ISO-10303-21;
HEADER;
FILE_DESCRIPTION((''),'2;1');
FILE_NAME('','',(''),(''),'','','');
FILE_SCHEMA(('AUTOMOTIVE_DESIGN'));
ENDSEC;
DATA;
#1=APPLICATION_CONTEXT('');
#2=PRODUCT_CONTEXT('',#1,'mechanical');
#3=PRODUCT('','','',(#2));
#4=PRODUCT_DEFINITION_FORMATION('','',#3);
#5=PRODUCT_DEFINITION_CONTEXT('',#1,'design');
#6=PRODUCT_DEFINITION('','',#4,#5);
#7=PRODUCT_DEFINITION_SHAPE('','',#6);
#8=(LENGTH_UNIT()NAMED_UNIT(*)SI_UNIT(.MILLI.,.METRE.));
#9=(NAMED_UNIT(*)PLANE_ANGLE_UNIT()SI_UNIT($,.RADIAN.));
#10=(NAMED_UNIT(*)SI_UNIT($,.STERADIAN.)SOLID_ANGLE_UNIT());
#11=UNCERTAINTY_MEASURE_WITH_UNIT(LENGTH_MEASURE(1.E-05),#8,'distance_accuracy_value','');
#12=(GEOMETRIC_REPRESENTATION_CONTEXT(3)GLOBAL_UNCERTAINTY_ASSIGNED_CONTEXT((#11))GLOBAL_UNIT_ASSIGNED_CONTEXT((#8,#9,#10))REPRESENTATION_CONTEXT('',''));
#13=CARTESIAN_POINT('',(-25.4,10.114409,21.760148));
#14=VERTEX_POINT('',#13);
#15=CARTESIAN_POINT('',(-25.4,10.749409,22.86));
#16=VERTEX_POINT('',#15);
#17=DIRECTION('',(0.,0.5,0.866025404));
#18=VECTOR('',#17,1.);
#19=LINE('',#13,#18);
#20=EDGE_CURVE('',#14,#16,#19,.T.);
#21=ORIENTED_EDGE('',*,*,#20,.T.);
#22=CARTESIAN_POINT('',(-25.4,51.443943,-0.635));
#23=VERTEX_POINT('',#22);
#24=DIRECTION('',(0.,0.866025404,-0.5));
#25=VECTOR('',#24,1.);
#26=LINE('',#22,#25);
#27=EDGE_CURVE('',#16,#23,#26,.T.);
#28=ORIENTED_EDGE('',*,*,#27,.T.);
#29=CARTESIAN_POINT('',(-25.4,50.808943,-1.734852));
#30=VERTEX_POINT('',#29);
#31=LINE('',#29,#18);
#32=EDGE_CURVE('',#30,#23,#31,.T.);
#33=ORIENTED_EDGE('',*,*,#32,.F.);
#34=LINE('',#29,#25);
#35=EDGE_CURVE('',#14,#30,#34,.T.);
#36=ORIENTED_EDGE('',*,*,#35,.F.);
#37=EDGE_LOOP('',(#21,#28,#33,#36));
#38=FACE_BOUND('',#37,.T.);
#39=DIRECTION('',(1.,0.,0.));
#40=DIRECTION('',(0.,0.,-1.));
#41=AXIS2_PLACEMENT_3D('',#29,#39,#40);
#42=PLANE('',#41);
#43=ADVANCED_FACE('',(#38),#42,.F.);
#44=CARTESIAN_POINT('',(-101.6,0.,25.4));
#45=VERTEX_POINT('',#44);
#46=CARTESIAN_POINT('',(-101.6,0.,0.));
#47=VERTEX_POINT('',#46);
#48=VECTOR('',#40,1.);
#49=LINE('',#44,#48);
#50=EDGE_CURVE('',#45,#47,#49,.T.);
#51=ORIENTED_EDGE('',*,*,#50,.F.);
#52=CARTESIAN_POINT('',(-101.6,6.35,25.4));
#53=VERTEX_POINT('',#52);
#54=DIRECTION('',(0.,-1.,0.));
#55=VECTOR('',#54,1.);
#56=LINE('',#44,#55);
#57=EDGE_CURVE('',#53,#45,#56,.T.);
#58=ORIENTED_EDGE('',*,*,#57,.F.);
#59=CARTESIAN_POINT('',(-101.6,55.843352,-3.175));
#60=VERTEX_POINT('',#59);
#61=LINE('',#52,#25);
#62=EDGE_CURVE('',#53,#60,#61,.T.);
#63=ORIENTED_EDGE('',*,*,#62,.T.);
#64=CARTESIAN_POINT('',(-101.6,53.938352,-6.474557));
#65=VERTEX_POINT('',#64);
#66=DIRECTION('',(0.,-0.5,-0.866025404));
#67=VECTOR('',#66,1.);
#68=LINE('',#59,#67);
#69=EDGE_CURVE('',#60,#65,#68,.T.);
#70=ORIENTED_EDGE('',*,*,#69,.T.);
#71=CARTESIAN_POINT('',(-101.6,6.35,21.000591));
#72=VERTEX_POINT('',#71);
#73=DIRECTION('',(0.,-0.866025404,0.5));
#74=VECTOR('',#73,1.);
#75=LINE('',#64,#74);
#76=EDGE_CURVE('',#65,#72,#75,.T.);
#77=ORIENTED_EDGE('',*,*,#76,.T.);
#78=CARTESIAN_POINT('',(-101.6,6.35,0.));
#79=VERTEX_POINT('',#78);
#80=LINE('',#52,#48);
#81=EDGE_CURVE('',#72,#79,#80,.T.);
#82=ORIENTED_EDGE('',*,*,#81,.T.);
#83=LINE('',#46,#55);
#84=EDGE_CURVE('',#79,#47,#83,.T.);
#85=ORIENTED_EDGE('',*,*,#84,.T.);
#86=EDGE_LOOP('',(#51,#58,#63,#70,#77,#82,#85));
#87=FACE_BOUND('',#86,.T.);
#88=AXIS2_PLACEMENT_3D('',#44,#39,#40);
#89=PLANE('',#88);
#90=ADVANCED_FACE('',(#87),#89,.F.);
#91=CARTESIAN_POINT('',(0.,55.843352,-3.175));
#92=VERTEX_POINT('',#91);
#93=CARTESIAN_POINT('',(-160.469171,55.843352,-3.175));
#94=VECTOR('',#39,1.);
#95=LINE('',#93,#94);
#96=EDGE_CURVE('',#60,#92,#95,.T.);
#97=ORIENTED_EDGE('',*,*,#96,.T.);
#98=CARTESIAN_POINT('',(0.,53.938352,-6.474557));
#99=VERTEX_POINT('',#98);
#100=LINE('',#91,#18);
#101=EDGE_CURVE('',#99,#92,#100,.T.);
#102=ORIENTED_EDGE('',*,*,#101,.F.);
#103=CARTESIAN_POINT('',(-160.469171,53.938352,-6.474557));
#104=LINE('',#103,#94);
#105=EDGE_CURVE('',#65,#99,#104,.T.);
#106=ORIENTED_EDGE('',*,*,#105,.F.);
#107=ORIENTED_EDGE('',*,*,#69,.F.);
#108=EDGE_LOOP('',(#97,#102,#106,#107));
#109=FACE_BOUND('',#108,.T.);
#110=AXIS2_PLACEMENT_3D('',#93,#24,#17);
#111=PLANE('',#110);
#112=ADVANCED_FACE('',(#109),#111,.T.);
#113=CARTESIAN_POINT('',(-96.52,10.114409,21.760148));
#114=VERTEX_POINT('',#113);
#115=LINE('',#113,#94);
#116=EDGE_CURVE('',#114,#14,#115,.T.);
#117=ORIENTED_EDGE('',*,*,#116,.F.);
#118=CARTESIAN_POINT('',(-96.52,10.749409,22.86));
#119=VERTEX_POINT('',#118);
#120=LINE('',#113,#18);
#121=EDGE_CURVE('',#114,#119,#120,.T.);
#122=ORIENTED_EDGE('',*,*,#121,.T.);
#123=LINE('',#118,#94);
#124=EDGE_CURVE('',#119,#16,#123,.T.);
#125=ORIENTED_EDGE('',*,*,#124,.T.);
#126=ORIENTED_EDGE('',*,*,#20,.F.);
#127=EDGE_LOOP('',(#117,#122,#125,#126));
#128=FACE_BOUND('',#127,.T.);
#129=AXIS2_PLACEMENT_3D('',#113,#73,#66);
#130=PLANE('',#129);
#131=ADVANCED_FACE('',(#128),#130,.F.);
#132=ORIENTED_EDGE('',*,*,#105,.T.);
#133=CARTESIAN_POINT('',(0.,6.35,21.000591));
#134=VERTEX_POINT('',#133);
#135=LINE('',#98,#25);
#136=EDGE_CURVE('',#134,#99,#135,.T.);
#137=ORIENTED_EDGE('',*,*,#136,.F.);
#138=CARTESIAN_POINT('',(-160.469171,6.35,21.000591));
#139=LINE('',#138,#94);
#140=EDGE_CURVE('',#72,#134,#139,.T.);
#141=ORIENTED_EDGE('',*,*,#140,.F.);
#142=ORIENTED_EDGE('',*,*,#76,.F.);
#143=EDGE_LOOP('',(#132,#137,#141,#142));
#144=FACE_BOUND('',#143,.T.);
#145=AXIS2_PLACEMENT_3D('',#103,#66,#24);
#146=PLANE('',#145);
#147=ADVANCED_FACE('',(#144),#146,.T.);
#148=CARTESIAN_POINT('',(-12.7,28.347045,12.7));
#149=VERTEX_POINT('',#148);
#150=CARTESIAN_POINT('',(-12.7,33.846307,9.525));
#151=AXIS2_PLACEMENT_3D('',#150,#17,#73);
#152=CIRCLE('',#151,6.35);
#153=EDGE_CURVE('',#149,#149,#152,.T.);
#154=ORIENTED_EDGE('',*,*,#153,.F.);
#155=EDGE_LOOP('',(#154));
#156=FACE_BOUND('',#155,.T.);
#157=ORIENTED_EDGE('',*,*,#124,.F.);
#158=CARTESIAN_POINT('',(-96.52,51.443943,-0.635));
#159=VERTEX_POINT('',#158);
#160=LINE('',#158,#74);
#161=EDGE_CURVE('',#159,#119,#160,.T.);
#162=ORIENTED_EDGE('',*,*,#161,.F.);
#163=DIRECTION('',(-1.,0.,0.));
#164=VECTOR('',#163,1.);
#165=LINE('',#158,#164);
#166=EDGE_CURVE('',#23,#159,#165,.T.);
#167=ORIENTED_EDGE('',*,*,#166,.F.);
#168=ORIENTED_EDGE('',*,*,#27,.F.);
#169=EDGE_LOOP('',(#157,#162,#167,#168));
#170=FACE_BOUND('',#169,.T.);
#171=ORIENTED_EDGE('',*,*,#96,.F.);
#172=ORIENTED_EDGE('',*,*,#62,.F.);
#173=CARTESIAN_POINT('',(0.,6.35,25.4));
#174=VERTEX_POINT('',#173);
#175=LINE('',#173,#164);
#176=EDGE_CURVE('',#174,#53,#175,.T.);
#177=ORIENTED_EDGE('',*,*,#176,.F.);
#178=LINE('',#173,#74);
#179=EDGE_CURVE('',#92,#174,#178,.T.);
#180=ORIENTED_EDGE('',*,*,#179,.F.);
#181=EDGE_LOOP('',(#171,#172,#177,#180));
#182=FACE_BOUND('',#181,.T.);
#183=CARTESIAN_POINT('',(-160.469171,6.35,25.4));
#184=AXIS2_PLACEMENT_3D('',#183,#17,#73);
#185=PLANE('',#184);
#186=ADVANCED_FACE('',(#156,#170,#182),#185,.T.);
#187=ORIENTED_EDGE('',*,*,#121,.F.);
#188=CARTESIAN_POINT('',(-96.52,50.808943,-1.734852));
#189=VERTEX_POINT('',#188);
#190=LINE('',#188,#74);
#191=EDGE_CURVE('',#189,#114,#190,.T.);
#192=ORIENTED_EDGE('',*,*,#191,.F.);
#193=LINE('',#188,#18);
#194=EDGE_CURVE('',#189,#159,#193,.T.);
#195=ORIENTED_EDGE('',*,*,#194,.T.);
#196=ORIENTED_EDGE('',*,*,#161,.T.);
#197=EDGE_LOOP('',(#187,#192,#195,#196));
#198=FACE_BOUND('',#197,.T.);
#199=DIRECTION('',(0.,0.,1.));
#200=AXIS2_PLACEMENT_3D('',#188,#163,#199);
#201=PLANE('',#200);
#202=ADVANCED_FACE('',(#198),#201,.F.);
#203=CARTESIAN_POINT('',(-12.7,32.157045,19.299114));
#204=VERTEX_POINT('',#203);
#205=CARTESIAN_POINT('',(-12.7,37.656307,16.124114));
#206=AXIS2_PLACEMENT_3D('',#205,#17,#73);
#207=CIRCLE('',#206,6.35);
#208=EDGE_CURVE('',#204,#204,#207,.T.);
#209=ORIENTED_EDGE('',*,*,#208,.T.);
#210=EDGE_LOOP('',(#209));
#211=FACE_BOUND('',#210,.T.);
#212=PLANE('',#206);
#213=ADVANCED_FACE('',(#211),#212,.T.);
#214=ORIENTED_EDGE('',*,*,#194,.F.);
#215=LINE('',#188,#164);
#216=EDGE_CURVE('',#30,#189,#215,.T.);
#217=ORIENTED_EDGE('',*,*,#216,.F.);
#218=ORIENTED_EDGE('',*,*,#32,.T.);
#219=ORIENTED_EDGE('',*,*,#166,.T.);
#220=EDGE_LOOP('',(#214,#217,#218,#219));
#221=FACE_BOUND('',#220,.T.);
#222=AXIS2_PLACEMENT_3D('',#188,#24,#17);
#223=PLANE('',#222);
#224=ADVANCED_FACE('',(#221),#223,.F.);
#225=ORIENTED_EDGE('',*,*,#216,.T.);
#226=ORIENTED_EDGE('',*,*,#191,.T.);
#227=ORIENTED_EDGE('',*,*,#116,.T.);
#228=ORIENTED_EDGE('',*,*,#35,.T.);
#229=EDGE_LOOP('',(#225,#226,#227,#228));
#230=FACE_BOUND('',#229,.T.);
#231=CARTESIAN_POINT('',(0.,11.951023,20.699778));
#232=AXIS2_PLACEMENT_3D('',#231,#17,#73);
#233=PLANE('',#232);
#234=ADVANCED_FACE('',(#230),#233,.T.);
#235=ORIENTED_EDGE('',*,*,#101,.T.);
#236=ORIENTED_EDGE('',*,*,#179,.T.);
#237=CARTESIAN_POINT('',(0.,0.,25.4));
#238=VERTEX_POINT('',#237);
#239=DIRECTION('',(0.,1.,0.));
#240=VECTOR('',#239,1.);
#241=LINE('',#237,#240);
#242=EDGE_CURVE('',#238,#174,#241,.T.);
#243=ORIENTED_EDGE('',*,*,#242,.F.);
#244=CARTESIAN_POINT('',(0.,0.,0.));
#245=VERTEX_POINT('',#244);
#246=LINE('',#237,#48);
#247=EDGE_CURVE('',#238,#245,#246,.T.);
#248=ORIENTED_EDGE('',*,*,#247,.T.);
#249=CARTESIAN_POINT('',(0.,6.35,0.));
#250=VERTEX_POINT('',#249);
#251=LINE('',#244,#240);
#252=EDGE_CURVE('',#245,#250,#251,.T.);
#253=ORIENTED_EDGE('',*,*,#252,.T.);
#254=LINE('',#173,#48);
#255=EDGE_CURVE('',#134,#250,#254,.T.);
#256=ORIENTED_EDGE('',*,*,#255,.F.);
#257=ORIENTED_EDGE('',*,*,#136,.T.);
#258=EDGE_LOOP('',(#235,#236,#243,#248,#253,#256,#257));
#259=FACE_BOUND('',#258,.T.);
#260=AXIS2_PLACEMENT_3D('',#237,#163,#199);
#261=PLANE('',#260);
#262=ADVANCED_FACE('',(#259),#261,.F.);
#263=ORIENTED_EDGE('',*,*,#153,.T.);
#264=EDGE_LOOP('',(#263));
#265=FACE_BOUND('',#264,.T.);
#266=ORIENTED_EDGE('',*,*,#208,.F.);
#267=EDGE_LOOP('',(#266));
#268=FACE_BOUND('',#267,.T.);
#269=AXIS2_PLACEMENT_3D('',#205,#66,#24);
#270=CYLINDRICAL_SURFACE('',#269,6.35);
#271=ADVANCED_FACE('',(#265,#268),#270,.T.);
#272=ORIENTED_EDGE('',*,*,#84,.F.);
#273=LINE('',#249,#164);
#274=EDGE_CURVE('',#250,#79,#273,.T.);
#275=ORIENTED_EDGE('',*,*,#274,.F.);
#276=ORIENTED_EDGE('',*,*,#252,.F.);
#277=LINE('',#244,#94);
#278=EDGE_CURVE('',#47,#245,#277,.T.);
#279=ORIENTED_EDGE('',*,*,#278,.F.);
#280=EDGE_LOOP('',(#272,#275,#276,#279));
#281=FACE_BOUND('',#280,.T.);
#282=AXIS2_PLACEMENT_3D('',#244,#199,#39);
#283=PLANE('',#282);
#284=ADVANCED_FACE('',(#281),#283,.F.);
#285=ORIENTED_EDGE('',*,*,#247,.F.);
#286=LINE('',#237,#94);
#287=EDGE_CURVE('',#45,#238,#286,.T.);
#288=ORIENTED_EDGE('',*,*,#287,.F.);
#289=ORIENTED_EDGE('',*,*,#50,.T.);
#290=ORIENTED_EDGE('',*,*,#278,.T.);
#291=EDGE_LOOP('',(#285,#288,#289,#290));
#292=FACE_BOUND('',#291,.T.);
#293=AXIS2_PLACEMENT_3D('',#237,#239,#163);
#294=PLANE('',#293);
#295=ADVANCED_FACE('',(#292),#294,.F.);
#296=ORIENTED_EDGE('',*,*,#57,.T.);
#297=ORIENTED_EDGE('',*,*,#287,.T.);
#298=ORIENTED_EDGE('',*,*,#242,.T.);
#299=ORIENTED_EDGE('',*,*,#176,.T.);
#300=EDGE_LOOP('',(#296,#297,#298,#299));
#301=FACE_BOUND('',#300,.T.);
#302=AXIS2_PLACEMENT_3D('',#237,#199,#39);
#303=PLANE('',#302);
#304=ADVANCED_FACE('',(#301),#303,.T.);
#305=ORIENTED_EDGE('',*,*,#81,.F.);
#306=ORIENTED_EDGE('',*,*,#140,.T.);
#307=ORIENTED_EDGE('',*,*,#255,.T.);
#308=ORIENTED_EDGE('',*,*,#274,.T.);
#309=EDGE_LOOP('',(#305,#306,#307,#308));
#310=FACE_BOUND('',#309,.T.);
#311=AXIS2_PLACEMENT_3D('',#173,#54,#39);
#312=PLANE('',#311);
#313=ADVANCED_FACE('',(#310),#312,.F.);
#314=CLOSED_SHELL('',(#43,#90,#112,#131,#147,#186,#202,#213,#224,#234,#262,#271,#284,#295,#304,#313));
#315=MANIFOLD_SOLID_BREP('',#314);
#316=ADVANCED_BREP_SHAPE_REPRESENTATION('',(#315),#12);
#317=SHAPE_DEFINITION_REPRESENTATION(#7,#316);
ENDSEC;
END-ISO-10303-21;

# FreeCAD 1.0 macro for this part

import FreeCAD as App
import Part
import Sketcher
Q = App.Units.Quantity


def add_polygon(sketch, points):
    """Adds a closed chain of lines whose ends are joined by coincident constraints."""
    first, n = sketch.GeometryCount, len(points)
    for a, b in zip(points, points[1:] + points[:1]):
        sketch.addGeometry(Part.LineSegment(App.Vector(*a, 0), App.Vector(*b, 0)), False)
    for i in range(n):
        sketch.addConstraint(Sketcher.Constraint("Coincident", first + i, 2, first + (i + 1) % n, 1))

doc = App.newDocument("Part")
body = doc.addObject("PartDesign::Body", "Body")

sketch1 = doc.addObject("Sketcher::SketchObject", "Sketch")
body.addObject(sketch1)
sketch1.AttachmentSupport = (doc.XY_Plane, [""])
sketch1.MapMode = "FlatFace"
add_polygon(sketch1, [(-102, 6), (-102, 0), (0, 0), (0, 6)])
sketch1.addConstraint([
    Sketcher.Constraint("Vertical", 0),
    Sketcher.Constraint("Horizontal", 1),
    Sketcher.Constraint("Vertical", 2),
    Sketcher.Constraint("Horizontal", 3),
    Sketcher.Constraint("Coincident", 1, 2, -1, 1),
    Sketcher.Constraint("DistanceX", 1, 1, 1, 2, Q("4 in")),
    Sketcher.Constraint("DistanceY", 0, 2, 0, 1, Q("0.25 in")),
])
pad1 = doc.addObject("PartDesign::Pad", "Pad")
body.addObject(pad1)
pad1.Profile = sketch1
pad1.Length = Q("1 in")

sketch2 = doc.addObject("Sketcher::SketchObject", "Sketch001")
body.addObject(sketch2)
sketch2.AttachmentSupport = (doc.YZ_Plane, [""])
sketch2.MapMode = "FlatFace"
add_polygon(sketch2, [(55.8, -3.2), (6.3, 25.4), (6.3, 21), (53.9, -6.5)])
sketch2.addConstraint([
    Sketcher.Constraint("Vertical", 1),
    Sketcher.Constraint("Parallel", 0, 2),
    Sketcher.Constraint("Perpendicular", 2, 3),
    Sketcher.Constraint("DistanceY", -1, 1, 0, 2, Q("1 in")),
    Sketcher.Constraint("Angle", 0, Q("150 deg")),
    Sketcher.Constraint("Distance", 0, Q("2.25 in")),
    Sketcher.Constraint("Distance", 3, Q("0.15 in")),
    Sketcher.Constraint("DistanceX", -1, 1, 0, 2, Q("0.25 in")),
])
pad2 = doc.addObject("PartDesign::Pad", "Pad001")
body.addObject(pad2)
pad2.Profile = sketch2
pad2.Length = Q("4 in")
pad2.Reversed = True

sketch3 = doc.addObject("Sketcher::SketchObject", "Sketch002")
body.addObject(sketch3)
sketch3.Placement = App.Placement(App.Vector(0, 12.586023, 21.799631), App.Rotation(App.Vector(1, 0, 0), App.Vector(0, 0.866025404, -0.5), App.Vector(0, 0.5, 0.866025404), "ZXY"))
add_polygon(sketch3, [(-97, 45), (-97, -2), (-25, -2), (-25, 45)])
sketch3.addConstraint([
    Sketcher.Constraint("Vertical", 0),
    Sketcher.Constraint("Horizontal", 1),
    Sketcher.Constraint("Vertical", 2),
    Sketcher.Constraint("Horizontal", 3),
    Sketcher.Constraint("DistanceX", 1, 1, 1, 2, Q("2.8 in")),
    Sketcher.Constraint("DistanceX", 1, 2, -1, 1, Q("1 in")),
    Sketcher.Constraint("DistanceY", 0, 2, 0, 1, Q("1.85 in")),
    Sketcher.Constraint("DistanceY", 0, 2, -1, 1, 2.120739),
])
pocket1 = doc.addObject("PartDesign::Pocket", "Pocket")
body.addObject(pocket1)
pocket1.Profile = sketch3
pocket1.Length = Q("0.05 in")

sketch4 = doc.addObject("Sketcher::SketchObject", "Sketch003")
body.addObject(sketch4)
sketch4.Placement = App.Placement(App.Vector(0, 12.586023, 21.799631), App.Rotation(App.Vector(1, 0, 0), App.Vector(0, 0.866025404, -0.5), App.Vector(0, 0.5, 0.866025404), "ZXY"))
sketch4.addGeometry(Part.Circle(App.Vector(-13, 25, 0), App.Vector(0, 0, 1), 6), False)
sketch4.addConstraint([
    Sketcher.Constraint("Diameter", 0, Q("0.5 in")),
    Sketcher.Constraint("DistanceX", 0, 3, -1, 1, Q("0.5 in")),
    Sketcher.Constraint("DistanceY", -1, 1, 0, 3, 24.549261),
])
pad3 = doc.addObject("PartDesign::Pad", "Pad002")
body.addObject(pad3)
pad3.Profile = sketch4
pad3.Length = Q("0.3 in")

doc.recompute()
